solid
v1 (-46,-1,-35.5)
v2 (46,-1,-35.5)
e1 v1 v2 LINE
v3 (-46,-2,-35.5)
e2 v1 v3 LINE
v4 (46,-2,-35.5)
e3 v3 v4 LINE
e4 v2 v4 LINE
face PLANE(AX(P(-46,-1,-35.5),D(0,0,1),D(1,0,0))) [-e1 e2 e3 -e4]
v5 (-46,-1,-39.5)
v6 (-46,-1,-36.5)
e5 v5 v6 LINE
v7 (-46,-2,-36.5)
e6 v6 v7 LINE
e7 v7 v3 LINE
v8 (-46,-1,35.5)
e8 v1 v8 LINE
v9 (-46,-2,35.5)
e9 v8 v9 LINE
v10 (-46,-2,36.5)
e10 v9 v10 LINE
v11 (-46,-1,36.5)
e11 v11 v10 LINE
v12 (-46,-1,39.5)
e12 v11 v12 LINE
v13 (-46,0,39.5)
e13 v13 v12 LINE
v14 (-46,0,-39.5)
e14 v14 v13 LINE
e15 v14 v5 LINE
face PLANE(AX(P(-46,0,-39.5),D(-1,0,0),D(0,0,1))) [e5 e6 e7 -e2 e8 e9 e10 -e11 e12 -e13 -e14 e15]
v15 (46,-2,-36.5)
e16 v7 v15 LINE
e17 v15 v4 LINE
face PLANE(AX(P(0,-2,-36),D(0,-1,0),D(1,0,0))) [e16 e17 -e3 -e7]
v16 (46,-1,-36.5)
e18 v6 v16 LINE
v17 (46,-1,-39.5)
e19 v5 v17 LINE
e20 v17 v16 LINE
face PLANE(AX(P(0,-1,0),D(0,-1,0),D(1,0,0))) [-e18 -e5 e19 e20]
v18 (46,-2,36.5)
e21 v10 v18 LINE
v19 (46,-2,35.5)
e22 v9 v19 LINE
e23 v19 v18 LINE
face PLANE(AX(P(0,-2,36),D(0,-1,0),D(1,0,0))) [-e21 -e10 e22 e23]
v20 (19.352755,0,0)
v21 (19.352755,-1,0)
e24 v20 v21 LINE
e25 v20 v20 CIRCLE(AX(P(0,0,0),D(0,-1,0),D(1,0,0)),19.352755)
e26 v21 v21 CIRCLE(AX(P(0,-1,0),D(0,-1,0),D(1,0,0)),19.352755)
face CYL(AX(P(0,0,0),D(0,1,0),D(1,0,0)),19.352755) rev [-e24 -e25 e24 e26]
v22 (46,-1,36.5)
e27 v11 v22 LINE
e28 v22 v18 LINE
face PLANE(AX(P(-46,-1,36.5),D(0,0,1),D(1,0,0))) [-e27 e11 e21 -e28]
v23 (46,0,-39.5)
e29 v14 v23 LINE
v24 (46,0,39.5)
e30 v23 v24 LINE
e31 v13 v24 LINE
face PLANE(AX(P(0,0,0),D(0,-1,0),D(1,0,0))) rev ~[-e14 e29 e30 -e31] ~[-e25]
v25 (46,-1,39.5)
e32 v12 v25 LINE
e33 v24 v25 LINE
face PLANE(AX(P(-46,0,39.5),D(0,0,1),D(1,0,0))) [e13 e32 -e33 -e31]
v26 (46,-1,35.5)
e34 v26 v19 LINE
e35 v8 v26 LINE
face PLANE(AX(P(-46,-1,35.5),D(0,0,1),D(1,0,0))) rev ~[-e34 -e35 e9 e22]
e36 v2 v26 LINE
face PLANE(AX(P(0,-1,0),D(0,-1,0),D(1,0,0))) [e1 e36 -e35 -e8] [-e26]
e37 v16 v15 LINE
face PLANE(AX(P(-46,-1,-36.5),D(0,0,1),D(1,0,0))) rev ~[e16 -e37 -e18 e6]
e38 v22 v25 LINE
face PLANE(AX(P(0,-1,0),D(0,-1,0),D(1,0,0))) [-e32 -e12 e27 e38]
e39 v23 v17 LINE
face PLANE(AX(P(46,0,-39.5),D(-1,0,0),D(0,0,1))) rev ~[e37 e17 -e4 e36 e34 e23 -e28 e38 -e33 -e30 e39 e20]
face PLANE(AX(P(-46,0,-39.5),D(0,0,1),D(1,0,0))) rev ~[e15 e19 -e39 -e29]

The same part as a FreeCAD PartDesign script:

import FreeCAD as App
import Part
import Sketcher
Q = App.Units.Quantity

doc = App.newDocument("Part")
body = doc.addObject("PartDesign::Body", "Body")

# Sketch on XZ plane
sketch1 = body.newObject("Sketcher::SketchObject", "Sketch")
sketch1.AttachmentSupport = (doc.getObject("XZ_Plane"), [""])
sketch1.MapMode = "FlatFace"
sketch1.addGeometry([
    Part.LineSegment(App.Vector(-46, 40, 0), App.Vector(-46, -40, 0)),  # 0
    Part.LineSegment(App.Vector(-46, -40, 0), App.Vector(46, -40, 0)),  # 1
    Part.LineSegment(App.Vector(46, -40, 0), App.Vector(46, 40, 0)),  # 2
    Part.LineSegment(App.Vector(46, 40, 0), App.Vector(-46, 40, 0)),  # 3
    Part.Circle(App.Vector(0, 0, 0), App.Vector(0, 0, 1), 19),  # 4
], False)
sketch1.addConstraint([
    Sketcher.Constraint("Coincident", 0, 2, 1, 1),
    Sketcher.Constraint("Coincident", 1, 2, 2, 1),
    Sketcher.Constraint("Coincident", 2, 2, 3, 1),
    Sketcher.Constraint("Coincident", 3, 2, 0, 1),
    Sketcher.Constraint("Vertical", 0),
    Sketcher.Constraint("Horizontal", 1),
    Sketcher.Constraint("Vertical", 2),
    Sketcher.Constraint("Horizontal", 3),
    Sketcher.Constraint("Coincident", 4, 3, -1, 1),
    Sketcher.Constraint("Symmetric", 0, 2, 2, 2, -1, 1),
    Sketcher.Constraint("DistanceX", 1, 1, 1, 2, Q("92 mm")),
    Sketcher.Constraint("DistanceY", 0, 2, 0, 1, Q("79 mm")),
    Sketcher.Constraint("Diameter", 4, Q("38.70551 mm")),
])
pad1 = body.newObject("PartDesign::Pad", "Pad")
pad1.Profile = sketch1
pad1.Length = 1

# Sketch on XZ plane
sketch2 = body.newObject("Sketcher::SketchObject", "Sketch001")
sketch2.AttachmentSupport = (doc.getObject("XZ_Plane"), [""])
sketch2.MapMode = "FlatFace"
sketch2.AttachmentOffset = App.Placement(App.Vector(0, 0, 1), App.Rotation())
sketch2.addGeometry([
    Part.LineSegment(App.Vector(-46, 36.5, 0), App.Vector(-46, 35.5, 0)),  # 0
    Part.LineSegment(App.Vector(-46, 35.5, 0), App.Vector(46, 35.5, 0)),  # 1
    Part.LineSegment(App.Vector(46, 35.5, 0), App.Vector(46, 36.5, 0)),  # 2
    Part.LineSegment(App.Vector(46, 36.5, 0), App.Vector(-46, 36.5, 0)),  # 3
    Part.LineSegment(App.Vector(-46, -35.5, 0), App.Vector(-46, -36.5, 0)),  # 4
    Part.LineSegment(App.Vector(-46, -36.5, 0), App.Vector(46, -36.5, 0)),  # 5
    Part.LineSegment(App.Vector(46, -36.5, 0), App.Vector(46, -35.5, 0)),  # 6
    Part.LineSegment(App.Vector(46, -35.5, 0), App.Vector(-46, -35.5, 0)),  # 7
], False)
sketch2.addConstraint([
    Sketcher.Constraint("Coincident", 0, 2, 1, 1),
    Sketcher.Constraint("Coincident", 1, 2, 2, 1),
    Sketcher.Constraint("Coincident", 2, 2, 3, 1),
    Sketcher.Constraint("Coincident", 3, 2, 0, 1),
    Sketcher.Constraint("Coincident", 4, 2, 5, 1),
    Sketcher.Constraint("Coincident", 5, 2, 6, 1),
    Sketcher.Constraint("Coincident", 6, 2, 7, 1),
    Sketcher.Constraint("Coincident", 7, 2, 4, 1),
    Sketcher.Constraint("Vertical", 0),
    Sketcher.Constraint("Horizontal", 1),
    Sketcher.Constraint("Vertical", 2),
    Sketcher.Constraint("Horizontal", 3),
    Sketcher.Constraint("Vertical", 4),
    Sketcher.Constraint("Horizontal", 5),
    Sketcher.Constraint("Vertical", 6),
    Sketcher.Constraint("Horizontal", 7),
    Sketcher.Constraint("Symmetric", 2, 2, 4, 2, -1, 1),
    Sketcher.Constraint("Symmetric", 0, 2, 6, 2, -1, 1),
    Sketcher.Constraint("Vertical", 3, 2, 4, 2),
    Sketcher.Constraint("DistanceX", 1, 1, 1, 2, Q("92 mm")),
    Sketcher.Constraint("DistanceY", 0, 2, 0, 1, Q("1 mm")),
    Sketcher.Constraint("DistanceY", 4, 2, 0, 2, Q("72 mm")),
])
pad2 = body.newObject("PartDesign::Pad", "Pad001")
pad2.Profile = sketch2
pad2.Length = 1

doc.recompute()
